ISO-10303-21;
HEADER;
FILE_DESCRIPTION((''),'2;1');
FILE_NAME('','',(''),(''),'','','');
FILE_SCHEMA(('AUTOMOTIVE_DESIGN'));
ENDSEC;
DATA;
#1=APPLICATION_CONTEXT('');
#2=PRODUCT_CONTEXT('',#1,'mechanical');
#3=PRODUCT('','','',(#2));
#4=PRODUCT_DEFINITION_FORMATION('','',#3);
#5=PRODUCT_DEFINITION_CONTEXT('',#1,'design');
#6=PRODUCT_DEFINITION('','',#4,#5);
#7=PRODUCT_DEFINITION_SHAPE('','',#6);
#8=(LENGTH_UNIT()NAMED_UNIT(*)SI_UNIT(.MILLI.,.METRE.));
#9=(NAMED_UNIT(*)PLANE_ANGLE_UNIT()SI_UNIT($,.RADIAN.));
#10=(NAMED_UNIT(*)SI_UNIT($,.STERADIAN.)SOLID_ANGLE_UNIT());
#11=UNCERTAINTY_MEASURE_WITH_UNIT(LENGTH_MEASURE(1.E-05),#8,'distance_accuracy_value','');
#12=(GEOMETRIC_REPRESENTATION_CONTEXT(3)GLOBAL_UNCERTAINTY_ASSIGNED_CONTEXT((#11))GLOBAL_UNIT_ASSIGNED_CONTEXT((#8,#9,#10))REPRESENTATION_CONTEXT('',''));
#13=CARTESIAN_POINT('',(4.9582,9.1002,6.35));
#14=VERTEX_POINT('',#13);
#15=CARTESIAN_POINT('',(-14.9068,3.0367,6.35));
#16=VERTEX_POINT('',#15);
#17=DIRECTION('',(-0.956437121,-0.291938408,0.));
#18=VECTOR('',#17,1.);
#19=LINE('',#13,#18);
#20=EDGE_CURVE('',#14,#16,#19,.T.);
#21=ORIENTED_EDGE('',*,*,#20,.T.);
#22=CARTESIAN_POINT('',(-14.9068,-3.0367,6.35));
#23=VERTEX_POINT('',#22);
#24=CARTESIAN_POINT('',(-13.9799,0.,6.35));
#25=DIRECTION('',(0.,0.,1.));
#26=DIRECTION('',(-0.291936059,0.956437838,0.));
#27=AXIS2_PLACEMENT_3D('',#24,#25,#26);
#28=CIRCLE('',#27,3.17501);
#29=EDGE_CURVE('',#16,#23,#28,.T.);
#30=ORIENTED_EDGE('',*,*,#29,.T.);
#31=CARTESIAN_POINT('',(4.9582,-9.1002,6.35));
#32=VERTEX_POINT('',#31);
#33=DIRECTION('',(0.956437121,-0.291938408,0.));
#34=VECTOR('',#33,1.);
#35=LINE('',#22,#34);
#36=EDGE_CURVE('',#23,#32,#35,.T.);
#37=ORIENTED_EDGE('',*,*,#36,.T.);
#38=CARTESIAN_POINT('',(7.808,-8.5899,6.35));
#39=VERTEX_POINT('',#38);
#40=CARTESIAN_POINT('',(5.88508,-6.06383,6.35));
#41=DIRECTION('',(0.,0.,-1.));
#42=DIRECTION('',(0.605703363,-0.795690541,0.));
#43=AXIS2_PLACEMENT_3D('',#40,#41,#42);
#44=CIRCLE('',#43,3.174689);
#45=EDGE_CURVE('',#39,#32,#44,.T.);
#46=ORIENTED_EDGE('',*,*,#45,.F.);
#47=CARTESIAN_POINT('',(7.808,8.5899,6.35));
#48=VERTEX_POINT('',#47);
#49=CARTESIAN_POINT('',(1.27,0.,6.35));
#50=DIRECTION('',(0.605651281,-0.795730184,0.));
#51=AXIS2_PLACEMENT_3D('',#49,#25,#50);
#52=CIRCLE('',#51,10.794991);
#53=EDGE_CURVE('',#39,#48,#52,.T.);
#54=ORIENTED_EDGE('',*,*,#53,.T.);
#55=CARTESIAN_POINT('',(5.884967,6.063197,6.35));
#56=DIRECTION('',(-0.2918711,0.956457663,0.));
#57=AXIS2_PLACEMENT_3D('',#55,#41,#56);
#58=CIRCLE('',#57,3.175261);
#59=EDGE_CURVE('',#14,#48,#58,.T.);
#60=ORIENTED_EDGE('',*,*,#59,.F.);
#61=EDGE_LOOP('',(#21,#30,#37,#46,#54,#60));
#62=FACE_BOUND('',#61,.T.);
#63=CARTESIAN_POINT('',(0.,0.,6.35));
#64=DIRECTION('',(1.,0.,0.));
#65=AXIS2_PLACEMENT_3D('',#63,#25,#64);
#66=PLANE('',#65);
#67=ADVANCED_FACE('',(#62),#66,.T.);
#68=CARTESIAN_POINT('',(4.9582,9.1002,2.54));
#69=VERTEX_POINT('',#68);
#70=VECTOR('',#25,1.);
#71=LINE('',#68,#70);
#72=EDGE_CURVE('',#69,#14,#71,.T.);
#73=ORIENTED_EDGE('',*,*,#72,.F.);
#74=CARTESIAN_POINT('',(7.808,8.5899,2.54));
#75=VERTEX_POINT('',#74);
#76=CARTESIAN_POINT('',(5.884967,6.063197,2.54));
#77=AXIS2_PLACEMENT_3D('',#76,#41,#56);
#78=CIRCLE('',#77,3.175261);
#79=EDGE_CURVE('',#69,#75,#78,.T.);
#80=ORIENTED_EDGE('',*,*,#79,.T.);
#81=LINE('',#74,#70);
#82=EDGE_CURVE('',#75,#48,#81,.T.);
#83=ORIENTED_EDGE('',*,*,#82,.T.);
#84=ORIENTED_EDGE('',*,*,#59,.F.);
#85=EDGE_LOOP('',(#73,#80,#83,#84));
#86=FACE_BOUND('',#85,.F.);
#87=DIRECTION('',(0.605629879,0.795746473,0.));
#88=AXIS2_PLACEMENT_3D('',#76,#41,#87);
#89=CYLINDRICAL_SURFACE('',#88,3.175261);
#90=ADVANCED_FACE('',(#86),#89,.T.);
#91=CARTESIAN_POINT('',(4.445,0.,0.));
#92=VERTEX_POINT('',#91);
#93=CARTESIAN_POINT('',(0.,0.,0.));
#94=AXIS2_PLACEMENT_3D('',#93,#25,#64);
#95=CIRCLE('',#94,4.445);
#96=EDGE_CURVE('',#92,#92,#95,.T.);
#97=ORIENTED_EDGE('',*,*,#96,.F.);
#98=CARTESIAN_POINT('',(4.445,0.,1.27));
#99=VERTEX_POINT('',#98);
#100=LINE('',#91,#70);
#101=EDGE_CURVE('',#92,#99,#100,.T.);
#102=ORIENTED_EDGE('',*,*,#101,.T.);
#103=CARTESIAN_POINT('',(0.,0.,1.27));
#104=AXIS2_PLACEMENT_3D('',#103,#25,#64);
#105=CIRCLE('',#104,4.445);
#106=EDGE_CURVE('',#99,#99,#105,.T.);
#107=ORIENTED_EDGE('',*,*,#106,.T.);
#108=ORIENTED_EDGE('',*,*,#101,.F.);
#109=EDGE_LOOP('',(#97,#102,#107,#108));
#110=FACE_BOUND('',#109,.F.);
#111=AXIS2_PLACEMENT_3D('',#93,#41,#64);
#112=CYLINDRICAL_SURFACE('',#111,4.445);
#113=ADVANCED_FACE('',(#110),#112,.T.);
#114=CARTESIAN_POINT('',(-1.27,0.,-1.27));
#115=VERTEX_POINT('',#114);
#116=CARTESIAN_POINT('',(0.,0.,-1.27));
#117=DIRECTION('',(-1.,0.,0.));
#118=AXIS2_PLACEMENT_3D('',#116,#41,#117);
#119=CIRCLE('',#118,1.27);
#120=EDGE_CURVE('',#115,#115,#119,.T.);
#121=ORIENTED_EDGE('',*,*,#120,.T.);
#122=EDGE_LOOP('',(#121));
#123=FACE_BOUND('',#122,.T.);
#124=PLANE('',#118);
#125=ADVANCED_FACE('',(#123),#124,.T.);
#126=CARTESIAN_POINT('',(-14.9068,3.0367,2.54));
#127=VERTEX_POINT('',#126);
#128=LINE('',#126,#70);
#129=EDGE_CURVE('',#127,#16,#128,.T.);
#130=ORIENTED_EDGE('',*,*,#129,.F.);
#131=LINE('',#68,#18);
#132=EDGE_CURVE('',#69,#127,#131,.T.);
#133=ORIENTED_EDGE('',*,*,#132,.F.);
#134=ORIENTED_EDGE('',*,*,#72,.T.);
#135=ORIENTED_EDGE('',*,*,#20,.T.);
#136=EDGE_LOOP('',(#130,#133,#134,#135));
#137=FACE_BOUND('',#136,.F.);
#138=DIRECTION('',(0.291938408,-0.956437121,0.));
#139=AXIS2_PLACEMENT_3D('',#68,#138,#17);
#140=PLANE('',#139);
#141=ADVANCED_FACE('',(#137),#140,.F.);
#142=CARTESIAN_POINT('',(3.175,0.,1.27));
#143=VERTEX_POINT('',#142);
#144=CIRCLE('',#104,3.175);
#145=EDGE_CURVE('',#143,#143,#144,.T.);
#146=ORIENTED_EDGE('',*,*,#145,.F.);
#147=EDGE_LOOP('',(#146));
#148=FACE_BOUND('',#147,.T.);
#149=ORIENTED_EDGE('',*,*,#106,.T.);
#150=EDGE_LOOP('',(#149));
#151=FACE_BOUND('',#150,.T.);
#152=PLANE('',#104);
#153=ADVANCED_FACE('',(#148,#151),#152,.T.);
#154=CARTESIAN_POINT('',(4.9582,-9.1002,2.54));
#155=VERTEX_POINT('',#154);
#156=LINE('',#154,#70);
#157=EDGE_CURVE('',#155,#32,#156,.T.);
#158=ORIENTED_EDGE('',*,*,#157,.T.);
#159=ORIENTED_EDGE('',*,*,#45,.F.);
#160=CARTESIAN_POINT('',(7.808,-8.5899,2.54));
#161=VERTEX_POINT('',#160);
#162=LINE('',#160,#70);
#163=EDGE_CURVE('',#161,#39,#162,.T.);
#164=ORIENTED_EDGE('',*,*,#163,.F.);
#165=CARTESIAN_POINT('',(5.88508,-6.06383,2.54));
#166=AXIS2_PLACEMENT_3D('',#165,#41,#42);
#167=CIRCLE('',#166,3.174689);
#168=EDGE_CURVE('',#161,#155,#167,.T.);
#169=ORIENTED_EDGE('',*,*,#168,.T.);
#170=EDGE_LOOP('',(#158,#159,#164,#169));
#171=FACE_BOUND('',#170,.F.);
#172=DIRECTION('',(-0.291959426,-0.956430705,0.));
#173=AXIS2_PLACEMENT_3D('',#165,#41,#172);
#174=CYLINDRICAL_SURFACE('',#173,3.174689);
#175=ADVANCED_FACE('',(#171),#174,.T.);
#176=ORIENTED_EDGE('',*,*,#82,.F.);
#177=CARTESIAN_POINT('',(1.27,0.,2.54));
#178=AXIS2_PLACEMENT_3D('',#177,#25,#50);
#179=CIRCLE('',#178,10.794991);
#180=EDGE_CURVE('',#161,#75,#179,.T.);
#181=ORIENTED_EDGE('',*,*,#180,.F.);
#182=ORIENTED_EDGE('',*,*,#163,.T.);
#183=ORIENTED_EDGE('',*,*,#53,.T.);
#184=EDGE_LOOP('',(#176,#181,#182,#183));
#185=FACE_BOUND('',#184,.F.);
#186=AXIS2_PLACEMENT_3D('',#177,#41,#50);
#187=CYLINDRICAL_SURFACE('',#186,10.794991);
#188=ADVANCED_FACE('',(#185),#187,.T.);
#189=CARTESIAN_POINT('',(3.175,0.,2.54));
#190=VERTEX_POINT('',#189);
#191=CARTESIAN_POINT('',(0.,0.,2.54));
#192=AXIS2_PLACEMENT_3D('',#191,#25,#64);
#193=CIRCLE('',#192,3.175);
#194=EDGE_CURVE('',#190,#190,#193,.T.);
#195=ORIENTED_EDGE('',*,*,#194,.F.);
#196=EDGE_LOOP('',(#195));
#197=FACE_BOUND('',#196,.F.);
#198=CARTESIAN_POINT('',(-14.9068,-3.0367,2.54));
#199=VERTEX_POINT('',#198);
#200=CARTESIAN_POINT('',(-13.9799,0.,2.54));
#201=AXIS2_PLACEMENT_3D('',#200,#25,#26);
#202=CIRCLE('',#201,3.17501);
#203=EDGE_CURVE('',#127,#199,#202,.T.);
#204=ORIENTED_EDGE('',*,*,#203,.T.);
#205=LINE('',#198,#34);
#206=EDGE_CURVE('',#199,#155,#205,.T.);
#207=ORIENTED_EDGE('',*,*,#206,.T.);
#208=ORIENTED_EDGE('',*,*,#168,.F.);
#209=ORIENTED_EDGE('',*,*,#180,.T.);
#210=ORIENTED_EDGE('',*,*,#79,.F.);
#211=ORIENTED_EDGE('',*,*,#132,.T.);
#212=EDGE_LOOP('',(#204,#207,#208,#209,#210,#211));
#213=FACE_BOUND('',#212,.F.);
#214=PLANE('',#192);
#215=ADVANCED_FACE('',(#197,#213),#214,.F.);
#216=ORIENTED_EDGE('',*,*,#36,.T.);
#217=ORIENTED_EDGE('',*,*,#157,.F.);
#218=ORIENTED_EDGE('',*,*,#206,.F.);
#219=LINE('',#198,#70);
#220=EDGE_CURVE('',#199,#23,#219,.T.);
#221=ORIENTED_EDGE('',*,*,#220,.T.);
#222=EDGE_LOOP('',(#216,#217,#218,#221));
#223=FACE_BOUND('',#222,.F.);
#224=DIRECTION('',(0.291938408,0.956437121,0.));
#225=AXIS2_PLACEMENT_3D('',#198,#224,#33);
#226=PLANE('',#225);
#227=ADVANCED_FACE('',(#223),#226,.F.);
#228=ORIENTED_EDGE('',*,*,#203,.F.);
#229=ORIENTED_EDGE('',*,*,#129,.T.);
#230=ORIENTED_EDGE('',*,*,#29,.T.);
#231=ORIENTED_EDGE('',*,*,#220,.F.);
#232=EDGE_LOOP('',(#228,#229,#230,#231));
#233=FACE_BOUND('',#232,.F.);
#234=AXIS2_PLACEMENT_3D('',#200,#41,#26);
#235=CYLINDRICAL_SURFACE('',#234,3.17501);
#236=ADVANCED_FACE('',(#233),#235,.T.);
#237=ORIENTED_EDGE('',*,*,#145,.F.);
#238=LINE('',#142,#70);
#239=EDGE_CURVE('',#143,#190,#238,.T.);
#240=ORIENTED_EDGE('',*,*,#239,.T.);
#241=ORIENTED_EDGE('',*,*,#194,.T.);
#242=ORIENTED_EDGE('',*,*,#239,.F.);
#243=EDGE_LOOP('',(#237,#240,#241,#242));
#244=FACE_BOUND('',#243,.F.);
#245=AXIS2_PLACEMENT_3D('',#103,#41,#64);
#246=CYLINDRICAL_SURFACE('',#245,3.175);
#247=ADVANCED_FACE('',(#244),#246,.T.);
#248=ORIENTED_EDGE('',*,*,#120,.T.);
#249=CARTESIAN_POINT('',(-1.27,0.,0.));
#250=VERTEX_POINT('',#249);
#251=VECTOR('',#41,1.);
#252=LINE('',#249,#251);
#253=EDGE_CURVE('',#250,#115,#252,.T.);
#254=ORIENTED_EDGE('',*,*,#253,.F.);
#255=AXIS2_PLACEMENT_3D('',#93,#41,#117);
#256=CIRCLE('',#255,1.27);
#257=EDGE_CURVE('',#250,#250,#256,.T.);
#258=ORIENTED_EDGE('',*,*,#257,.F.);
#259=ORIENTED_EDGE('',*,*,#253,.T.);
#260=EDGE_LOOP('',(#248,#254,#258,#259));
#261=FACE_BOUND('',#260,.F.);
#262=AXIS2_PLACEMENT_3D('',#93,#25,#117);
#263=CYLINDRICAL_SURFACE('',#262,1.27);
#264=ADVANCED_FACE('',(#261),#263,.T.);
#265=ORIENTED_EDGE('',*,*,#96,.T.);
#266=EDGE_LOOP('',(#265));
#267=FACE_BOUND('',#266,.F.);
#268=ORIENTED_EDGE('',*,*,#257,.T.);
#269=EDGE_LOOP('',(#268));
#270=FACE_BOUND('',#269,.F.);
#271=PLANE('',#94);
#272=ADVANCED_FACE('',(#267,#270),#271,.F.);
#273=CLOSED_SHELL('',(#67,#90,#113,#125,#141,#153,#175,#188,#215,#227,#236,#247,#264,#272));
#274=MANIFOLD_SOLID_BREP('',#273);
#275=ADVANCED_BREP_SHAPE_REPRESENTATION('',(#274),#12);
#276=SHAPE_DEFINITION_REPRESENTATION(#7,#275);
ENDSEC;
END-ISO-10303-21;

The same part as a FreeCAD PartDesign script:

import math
import FreeCAD as App
import Part
import Sketcher
from FreeCAD import Vector
Q = App.Units.Quantity

doc = App.newDocument("Part")
body = doc.addObject("PartDesign::Body", "Body")

# Sketch on XY plane
sketch1 = body.newObject("Sketcher::SketchObject", "Sketch")
sketch1.AttachmentSupport = (doc.getObject("XY_Plane"), [""])
sketch1.MapMode = "FlatFace"
sketch1.addGeometry(Part.Circle(Vector(0, 0, 0), Vector(0, 0, 1), 4.445), False)
sketch1.addConstraint(Sketcher.Constraint("Coincident", 0, 3, -1, 1))
sketch1.addConstraint(Sketcher.Constraint("Diameter", 0, Q("0.35 in")))
pad1 = body.newObject("PartDesign::Pad", "Pad")
pad1.Profile = sketch1
pad1.Length = Q("0.05 in")

# Sketch on XY plane
sketch2 = body.newObject("Sketcher::SketchObject", "Sketch001")
sketch2.AttachmentSupport = (doc.getObject("XY_Plane"), [""])
sketch2.MapMode = "FlatFace"
sketch2.addGeometry(Part.Circle(Vector(0, 0, 0), Vector(0, 0, 1), 1.27), False)
sketch2.addConstraint(Sketcher.Constraint("Coincident", 0, 3, -1, 1))
sketch2.addConstraint(Sketcher.Constraint("Diameter", 0, Q("0.1 in")))
pad2 = body.newObject("PartDesign::Pad", "Pad001")
pad2.Profile = sketch2
pad2.Length = Q("0.05 in")
pad2.Reversed = True

# Sketch on XY plane
sketch3 = body.newObject("Sketcher::SketchObject", "Sketch002")
sketch3.AttachmentSupport = (doc.getObject("XY_Plane"), [""])
sketch3.MapMode = "FlatFace"
sketch3.AttachmentOffset = App.Placement(Vector(0, 0, 0.05 * 25.4), App.Rotation())
sketch3.addGeometry(Part.Circle(Vector(0, 0, 0), Vector(0, 0, 1), 3.175), False)
sketch3.addConstraint(Sketcher.Constraint("Coincident", 0, 3, -1, 1))
sketch3.addConstraint(Sketcher.Constraint("Diameter", 0, Q("0.25 in")))
pad3 = body.newObject("PartDesign::Pad", "Pad002")
pad3.Profile = sketch3
pad3.Length = Q("0.05 in")

# Sketch on XY plane
sketch4 = body.newObject("Sketcher::SketchObject", "Sketch003")
sketch4.AttachmentSupport = (doc.getObject("XY_Plane"), [""])
sketch4.MapMode = "FlatFace"
sketch4.AttachmentOffset = App.Placement(Vector(0, 0, 0.1 * 25.4), App.Rotation())
sketch4.addGeometry(Part.ArcOfCircle(Part.Circle(Vector(5.8851, -6.0635, 0), Vector(0, 0, 1), 3.17501), math.radians(-106.973901), math.radians(-52.724419)), False)
sketch4.addGeometry(Part.ArcOfCircle(Part.Circle(Vector(1.27, 0, 0), Vector(0, 0, 1), 10.794991), math.radians(-52.724278), math.radians(52.724278)), False)
sketch4.addGeometry(Part.ArcOfCircle(Part.Circle(Vector(5.8851, 6.0635, 0), Vector(0, 0, 1), 3.17494), math.radians(52.724419), math.radians(106.973901)), False)
sketch4.addGeometry(Part.LineSegment(Vector(4.9582, 9.1002, 0), Vector(-14.9068, 3.0367, 0)), False)
sketch4.addGeometry(Part.ArcOfCircle(Part.Circle(Vector(-13.9799, 0, 0), Vector(0, 0, 1), 3.17501), math.radians(106.973901), math.radians(253.026099)), False)
sketch4.addGeometry(Part.LineSegment(Vector(-14.9068, -3.0367, 0), Vector(4.9582, -9.1002, 0)), False)
sketch4.addConstraint(Sketcher.Constraint("Tangent", 0, 2, 1, 1))
sketch4.addConstraint(Sketcher.Constraint("Tangent", 1, 2, 2, 1))
sketch4.addConstraint(Sketcher.Constraint("Tangent", 2, 2, 3, 1))
sketch4.addConstraint(Sketcher.Constraint("Tangent", 3, 2, 4, 1))
sketch4.addConstraint(Sketcher.Constraint("Tangent", 4, 2, 5, 1))
sketch4.addConstraint(Sketcher.Constraint("Tangent", 5, 2, 0, 1))
sketch4.addConstraint(Sketcher.Constraint("Equal", 0, 2))
sketch4.addConstraint(Sketcher.Constraint("Equal", 2, 4))
sketch4.addConstraint(Sketcher.Constraint("Symmetric", 0, 3, 2, 3, -1))
sketch4.addConstraint(Sketcher.Constraint("PointOnObject", 4, 3, -1))
sketch4.addConstraint(Sketcher.Constraint("Radius", 0, Q("0.125 in")))
sketch4.addConstraint(Sketcher.Constraint("Radius", 1, Q("0.425 in")))
sketch4.addConstraint(Sketcher.Constraint("DistanceX", -1, 1, 1, 3, Q("0.05 in")))
sketch4.addConstraint(Sketcher.Constraint("DistanceY", 0, 3, 2, 2, Q("0.597 in")))
sketch4.addConstraint(Sketcher.Constraint("Distance", 3, Q("0.8177 in")))
pad4 = body.newObject("PartDesign::Pad", "Pad003")
pad4.Profile = sketch4
pad4.Length = Q("0.15 in")

doc.recompute()
